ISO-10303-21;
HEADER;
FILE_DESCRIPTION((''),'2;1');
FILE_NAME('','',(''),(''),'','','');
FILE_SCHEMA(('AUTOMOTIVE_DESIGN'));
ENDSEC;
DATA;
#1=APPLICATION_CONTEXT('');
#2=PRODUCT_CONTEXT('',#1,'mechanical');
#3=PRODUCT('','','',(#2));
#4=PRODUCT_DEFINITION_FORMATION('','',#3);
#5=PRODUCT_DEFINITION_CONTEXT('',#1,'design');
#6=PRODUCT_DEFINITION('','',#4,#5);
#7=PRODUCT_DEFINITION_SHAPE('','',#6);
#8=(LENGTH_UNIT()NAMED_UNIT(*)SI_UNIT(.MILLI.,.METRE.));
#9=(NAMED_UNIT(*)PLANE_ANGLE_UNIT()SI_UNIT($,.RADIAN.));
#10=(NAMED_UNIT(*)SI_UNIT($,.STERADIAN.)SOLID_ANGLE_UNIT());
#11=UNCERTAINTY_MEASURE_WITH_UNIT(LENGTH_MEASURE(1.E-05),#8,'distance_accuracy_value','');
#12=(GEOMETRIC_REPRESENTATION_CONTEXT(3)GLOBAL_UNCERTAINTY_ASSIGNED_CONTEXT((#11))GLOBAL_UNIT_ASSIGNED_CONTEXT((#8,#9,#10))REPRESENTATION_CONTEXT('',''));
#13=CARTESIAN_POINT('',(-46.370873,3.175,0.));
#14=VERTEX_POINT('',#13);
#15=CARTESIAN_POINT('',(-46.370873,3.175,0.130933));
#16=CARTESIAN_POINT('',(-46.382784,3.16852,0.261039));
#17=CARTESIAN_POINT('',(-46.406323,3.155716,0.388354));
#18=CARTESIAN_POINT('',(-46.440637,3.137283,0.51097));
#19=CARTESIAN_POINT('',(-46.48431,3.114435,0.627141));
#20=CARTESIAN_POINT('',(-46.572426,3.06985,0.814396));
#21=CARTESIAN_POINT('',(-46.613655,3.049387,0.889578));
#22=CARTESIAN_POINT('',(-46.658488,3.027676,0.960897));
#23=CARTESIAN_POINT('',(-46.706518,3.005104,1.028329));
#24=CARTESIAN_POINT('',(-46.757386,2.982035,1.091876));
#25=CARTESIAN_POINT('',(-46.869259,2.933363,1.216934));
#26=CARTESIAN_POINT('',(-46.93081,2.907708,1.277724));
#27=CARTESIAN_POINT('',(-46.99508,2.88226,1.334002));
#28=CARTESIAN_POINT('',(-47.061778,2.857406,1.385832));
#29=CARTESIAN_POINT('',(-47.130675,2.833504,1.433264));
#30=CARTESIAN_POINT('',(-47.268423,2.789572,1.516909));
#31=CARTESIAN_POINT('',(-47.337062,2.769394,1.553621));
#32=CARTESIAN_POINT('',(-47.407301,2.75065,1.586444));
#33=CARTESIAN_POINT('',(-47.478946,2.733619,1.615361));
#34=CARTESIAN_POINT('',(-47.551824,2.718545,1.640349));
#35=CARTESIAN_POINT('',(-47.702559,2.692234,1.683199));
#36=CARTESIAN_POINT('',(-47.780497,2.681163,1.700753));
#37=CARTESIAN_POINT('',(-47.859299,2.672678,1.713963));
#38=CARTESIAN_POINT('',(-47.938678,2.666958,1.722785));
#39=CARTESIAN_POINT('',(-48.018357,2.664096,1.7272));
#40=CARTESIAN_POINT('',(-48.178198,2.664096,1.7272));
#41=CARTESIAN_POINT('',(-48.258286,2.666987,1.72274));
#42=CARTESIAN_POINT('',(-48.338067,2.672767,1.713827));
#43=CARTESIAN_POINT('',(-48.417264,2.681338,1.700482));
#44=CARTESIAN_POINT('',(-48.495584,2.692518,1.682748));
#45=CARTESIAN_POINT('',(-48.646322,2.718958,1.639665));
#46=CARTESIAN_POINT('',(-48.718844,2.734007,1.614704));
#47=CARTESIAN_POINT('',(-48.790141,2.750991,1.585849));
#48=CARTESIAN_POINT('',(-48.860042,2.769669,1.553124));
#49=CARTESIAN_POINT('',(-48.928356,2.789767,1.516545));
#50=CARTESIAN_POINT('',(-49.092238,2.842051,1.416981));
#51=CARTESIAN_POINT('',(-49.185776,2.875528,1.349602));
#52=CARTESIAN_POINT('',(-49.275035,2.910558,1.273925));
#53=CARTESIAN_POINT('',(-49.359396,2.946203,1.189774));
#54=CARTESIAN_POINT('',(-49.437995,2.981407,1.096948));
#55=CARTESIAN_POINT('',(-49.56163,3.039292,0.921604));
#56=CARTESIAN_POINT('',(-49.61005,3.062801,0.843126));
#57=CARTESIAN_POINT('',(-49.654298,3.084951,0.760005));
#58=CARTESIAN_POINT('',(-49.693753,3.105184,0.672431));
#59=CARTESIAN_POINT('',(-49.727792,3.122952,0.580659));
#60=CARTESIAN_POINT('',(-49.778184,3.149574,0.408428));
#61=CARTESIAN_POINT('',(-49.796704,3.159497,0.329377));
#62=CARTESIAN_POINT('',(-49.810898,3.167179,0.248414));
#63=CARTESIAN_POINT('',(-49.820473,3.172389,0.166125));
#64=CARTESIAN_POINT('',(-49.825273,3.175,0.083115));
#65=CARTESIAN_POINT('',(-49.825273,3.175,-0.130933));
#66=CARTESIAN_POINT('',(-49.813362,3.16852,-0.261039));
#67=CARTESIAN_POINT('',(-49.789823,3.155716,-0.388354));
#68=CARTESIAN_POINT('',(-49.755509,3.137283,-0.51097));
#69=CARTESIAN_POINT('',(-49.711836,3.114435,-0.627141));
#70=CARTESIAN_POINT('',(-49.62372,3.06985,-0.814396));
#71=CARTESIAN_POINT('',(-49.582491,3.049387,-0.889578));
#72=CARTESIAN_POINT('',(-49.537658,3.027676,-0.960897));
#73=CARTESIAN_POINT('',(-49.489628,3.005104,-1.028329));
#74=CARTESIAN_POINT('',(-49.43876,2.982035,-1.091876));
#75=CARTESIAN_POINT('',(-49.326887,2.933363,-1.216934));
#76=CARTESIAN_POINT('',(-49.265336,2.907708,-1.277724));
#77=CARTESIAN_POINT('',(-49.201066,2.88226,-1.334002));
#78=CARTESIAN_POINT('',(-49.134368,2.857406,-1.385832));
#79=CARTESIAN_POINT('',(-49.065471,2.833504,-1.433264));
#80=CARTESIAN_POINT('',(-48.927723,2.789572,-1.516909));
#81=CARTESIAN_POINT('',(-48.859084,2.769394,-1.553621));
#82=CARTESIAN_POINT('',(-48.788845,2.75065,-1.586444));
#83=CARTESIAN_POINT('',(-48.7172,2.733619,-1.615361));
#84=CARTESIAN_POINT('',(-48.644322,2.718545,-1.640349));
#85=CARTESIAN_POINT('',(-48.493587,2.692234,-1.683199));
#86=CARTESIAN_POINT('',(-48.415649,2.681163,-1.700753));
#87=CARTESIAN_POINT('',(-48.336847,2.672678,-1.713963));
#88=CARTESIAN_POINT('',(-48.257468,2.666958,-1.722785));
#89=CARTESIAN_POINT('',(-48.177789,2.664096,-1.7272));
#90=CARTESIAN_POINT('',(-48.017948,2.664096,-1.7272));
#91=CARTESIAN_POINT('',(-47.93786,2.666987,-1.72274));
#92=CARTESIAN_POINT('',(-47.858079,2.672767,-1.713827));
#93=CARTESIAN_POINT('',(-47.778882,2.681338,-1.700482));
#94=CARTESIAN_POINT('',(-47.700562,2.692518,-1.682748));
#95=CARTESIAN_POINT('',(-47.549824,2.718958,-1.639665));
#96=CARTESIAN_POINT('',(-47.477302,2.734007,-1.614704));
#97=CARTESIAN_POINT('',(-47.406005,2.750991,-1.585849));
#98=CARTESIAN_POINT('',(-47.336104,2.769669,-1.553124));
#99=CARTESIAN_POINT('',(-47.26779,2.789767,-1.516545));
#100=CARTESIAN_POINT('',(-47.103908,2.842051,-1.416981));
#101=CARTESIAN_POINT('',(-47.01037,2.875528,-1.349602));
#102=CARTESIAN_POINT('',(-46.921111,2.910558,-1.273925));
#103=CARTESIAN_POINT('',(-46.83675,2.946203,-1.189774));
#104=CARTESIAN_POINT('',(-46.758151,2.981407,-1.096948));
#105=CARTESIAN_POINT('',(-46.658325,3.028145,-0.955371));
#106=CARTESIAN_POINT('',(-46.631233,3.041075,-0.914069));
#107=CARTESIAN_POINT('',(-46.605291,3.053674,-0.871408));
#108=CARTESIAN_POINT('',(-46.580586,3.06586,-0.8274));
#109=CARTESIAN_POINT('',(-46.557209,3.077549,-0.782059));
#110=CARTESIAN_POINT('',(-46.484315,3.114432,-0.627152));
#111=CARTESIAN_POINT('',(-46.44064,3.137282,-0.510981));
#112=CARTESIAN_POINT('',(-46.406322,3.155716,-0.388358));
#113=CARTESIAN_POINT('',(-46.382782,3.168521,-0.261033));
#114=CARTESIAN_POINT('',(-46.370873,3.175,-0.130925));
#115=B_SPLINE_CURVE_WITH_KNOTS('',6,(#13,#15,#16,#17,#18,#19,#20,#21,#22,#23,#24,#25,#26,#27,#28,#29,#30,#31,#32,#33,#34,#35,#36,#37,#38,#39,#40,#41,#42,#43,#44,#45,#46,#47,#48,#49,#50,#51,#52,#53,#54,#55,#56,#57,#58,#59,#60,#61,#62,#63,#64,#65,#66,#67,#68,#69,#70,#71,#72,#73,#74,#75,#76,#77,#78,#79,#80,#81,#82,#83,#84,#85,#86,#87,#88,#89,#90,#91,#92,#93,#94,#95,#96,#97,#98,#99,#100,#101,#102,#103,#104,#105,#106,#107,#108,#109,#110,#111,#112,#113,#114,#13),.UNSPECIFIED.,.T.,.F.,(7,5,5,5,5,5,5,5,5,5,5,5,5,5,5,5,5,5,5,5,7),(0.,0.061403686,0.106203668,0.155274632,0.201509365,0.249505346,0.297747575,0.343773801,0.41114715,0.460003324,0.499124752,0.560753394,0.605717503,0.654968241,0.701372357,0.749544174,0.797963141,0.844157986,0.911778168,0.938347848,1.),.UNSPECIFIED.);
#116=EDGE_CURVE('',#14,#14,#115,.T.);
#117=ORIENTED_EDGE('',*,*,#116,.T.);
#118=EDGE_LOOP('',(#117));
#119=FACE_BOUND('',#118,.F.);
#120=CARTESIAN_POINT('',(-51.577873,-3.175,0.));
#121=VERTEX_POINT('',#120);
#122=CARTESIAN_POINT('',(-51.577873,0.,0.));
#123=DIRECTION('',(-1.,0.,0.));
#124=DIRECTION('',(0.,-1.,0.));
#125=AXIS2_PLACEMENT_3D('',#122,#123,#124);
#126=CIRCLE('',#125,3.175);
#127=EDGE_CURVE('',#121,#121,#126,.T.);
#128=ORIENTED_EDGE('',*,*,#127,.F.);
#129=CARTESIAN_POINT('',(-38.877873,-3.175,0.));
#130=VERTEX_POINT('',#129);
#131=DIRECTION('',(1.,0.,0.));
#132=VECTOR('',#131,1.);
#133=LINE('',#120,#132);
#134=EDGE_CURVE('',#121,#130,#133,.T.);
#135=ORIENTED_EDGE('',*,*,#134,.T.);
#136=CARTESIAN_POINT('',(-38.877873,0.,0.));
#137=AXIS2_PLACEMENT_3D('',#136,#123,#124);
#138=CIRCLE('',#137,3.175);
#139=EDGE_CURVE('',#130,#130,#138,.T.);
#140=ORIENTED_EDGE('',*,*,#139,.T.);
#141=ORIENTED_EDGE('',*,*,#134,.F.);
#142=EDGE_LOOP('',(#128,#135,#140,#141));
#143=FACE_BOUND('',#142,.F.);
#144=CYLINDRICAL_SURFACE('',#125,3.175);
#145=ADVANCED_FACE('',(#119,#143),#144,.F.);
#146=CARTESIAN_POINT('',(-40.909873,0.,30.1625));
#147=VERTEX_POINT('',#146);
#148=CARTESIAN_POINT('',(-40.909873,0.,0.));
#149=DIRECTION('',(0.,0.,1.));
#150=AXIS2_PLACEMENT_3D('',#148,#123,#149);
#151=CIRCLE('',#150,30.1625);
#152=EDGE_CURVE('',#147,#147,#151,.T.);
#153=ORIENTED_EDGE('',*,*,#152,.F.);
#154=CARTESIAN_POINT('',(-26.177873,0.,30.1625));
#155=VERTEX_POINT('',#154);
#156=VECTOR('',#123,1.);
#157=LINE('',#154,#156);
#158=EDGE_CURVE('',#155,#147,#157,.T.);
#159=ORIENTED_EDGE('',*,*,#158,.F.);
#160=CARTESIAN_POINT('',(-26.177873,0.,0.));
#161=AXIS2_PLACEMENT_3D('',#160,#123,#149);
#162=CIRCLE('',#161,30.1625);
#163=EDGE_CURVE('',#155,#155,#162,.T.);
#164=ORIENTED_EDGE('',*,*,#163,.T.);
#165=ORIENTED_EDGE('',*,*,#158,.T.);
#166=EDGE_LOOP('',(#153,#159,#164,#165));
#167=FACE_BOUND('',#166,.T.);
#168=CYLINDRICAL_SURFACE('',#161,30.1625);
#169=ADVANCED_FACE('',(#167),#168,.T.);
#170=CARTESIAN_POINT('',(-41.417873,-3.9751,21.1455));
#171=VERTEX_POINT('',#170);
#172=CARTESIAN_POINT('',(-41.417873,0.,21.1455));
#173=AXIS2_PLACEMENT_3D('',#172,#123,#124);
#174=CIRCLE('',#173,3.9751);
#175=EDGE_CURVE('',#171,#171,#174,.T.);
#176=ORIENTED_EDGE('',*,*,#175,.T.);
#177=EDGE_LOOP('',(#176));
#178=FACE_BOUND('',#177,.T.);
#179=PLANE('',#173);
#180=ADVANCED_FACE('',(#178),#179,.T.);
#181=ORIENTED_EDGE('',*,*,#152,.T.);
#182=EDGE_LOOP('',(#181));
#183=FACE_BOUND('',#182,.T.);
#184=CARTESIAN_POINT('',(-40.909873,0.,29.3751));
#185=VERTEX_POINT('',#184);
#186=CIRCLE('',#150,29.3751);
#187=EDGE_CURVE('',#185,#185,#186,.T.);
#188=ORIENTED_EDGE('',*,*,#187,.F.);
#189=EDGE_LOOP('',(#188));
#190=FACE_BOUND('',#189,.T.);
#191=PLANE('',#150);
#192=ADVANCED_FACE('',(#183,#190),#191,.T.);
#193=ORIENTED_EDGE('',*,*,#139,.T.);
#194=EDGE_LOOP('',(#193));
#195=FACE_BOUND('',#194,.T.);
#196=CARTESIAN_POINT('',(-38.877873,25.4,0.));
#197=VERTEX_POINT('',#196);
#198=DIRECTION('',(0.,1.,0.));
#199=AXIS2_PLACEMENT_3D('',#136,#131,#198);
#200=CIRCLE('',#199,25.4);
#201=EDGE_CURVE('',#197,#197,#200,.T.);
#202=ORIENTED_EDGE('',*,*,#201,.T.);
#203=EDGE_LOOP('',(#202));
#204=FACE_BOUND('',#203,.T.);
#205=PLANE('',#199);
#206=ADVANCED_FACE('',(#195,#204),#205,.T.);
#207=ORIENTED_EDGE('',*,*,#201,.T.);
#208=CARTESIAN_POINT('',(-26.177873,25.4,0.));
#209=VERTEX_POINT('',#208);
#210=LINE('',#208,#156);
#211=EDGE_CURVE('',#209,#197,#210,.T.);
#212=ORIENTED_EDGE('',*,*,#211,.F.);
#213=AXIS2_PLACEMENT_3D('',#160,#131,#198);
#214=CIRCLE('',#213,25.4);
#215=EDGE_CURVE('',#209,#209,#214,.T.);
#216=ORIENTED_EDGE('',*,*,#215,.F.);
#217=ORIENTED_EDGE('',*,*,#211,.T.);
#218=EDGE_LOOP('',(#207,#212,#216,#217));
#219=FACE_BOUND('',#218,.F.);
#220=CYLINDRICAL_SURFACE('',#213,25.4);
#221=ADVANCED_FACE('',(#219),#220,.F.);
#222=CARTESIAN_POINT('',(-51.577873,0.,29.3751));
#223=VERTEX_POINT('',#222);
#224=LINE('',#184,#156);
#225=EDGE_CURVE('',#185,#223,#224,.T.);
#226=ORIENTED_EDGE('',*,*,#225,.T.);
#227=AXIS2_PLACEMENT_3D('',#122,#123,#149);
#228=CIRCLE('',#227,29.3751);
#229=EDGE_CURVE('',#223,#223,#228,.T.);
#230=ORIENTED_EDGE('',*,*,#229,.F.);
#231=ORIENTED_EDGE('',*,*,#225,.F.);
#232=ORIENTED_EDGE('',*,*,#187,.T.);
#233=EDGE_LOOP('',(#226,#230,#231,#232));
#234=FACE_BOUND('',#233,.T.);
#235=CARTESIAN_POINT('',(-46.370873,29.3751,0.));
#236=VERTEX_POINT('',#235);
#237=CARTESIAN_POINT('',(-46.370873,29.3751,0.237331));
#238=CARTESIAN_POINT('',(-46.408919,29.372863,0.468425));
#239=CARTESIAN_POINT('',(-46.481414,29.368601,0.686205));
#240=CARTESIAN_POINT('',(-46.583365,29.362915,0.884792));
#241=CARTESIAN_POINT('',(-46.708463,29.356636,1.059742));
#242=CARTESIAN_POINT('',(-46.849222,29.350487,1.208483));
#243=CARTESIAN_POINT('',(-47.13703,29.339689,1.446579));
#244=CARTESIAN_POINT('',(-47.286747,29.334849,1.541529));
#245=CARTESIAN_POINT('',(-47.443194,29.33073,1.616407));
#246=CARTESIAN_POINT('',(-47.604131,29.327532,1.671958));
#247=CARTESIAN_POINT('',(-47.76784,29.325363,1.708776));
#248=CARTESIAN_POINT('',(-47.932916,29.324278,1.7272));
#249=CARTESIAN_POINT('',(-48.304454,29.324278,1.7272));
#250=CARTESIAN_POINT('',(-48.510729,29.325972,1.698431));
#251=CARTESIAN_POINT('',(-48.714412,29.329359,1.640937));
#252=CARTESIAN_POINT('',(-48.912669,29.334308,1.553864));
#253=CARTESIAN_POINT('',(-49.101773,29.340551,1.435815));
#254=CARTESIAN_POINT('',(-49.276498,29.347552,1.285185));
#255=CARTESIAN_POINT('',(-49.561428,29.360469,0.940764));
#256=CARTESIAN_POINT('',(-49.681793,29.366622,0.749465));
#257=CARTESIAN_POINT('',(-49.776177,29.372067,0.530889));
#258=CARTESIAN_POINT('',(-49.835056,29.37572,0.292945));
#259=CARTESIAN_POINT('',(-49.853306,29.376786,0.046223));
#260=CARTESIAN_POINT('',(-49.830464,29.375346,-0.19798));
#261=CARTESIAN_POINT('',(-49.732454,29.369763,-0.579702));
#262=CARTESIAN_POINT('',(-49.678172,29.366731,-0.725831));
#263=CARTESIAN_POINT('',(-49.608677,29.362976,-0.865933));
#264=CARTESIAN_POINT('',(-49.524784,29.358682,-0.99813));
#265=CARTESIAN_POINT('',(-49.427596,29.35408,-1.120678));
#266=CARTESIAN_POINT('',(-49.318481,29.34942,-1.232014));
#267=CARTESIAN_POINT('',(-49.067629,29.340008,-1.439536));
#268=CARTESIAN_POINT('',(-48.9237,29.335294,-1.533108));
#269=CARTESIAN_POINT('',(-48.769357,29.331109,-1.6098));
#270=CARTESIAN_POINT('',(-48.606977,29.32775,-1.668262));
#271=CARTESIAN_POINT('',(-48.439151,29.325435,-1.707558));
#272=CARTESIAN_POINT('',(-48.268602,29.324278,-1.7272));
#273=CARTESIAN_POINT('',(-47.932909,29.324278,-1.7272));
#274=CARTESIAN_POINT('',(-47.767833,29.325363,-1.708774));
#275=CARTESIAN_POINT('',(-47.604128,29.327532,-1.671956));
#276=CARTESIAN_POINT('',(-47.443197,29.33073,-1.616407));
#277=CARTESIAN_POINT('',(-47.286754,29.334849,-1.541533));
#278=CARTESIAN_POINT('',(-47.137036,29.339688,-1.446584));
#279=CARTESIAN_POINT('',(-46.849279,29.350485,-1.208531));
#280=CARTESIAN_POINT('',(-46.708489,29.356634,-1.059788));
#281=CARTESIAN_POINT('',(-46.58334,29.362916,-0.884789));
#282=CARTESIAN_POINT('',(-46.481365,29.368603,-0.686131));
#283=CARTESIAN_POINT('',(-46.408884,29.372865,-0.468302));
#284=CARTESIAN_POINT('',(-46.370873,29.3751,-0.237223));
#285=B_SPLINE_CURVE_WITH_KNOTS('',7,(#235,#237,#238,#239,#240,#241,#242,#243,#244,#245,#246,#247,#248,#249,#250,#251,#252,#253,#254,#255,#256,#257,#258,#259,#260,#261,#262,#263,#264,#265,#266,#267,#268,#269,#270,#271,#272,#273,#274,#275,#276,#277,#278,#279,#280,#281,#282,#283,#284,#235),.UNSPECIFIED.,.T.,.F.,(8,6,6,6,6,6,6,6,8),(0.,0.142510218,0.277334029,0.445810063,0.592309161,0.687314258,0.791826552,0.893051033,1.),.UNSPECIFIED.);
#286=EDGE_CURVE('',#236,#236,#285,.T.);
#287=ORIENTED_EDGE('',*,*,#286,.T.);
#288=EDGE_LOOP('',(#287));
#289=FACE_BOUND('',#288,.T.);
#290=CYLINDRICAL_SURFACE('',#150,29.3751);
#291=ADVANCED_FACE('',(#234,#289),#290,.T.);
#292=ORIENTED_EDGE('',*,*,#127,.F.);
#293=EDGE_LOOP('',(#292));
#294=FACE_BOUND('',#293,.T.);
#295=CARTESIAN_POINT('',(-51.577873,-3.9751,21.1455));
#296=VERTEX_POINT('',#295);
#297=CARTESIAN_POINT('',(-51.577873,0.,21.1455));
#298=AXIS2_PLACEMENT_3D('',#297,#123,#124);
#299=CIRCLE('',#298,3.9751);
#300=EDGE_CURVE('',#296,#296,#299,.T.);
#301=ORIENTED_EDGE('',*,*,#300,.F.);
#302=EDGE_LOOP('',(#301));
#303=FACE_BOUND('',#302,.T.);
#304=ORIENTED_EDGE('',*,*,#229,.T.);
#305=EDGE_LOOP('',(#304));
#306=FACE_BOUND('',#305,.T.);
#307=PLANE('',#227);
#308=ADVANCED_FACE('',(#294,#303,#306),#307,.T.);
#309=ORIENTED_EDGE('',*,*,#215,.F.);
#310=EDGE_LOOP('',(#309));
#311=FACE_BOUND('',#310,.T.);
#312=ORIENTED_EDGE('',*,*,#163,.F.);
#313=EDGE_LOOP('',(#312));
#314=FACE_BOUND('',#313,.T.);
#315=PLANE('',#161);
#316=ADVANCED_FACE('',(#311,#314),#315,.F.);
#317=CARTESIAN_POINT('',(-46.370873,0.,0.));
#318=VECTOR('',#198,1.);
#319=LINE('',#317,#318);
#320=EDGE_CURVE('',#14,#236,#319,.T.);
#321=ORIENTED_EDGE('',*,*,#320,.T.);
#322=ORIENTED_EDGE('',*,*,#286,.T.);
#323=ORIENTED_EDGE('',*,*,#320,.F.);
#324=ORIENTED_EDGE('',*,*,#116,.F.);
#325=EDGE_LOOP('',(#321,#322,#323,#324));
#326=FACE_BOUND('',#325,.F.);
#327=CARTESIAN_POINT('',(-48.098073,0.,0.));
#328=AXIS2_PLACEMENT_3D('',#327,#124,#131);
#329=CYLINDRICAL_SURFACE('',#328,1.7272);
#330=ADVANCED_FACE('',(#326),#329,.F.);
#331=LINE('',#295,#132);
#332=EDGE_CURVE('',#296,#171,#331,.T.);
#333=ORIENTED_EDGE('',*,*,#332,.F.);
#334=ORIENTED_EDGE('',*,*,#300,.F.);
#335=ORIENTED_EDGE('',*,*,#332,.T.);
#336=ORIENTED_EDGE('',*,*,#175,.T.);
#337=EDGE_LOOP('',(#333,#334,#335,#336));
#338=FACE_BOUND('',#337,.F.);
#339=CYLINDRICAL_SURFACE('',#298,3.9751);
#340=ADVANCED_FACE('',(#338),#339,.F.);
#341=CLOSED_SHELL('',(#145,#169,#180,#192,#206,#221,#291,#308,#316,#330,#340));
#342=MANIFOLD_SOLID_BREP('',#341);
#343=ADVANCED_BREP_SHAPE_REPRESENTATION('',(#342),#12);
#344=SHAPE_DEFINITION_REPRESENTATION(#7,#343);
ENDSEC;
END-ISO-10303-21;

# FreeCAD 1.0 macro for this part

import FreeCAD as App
import Part
import Sketcher
Q = App.Units.Quantity


def add_polygon(sketch, points):
    """Adds a closed chain of lines whose ends are joined by coincident constraints."""
    first, n = sketch.GeometryCount, len(points)
    for a, b in zip(points, points[1:] + points[:1]):
        sketch.addGeometry(Part.LineSegment(App.Vector(*a, 0), App.Vector(*b, 0)), False)
    for i in range(n):
        sketch.addConstraint(Sketcher.Constraint("Coincident", first + i, 2, first + (i + 1) % n, 1))

doc = App.newDocument("Part")
params = doc.addObject("Spreadsheet::Sheet", "Params")
for row, (alias, value) in enumerate([
    ("sketch1_width", "1 in"),
    ("sketch1_width2", "0.58 in"),
    ("sketch1_height", "1.1875 in"),
    ("sketch1_height2", "0.031 in"),
    ("revolution_angle", "360 deg"),
    ("sketch2_diameter", "2 in"),
    ("pocket1_length", "0.5 in"),
    ("sketch3_diameter", "0.25 in"),
    ("pocket2_length", "1 in"),
    ("sketch4_diameter", "0.313 in"),
    ("pocket3_length", "0.4 in"),
    ("sketch5_diameter", "0.136 in"),
    ("pocket4_length", "70.55837 mm"),
], start=1):
    params.set(f"A{row}", alias)
    params.set(f"B{row}", "=" + value)
    params.setAlias(f"B{row}", alias)

body = doc.addObject("PartDesign::Body", "Body")

sketch1 = body.newObject("Sketcher::SketchObject", "Sketch")
sketch1.AttachmentSupport = (doc.getObject("XZ_Plane"), [""])
sketch1.MapMode = "FlatFace"
add_polygon(sketch1, [(-51.6, 29.4), (-51.6, 0), (-26.2, 0), (-26.2, 30.2), (-40.9, 30.2), (-40.9, 29.4)])
sketch1.addConstraint(Sketcher.Constraint("Vertical", 0))
sketch1.addConstraint(Sketcher.Constraint("Horizontal", 1))
sketch1.addConstraint(Sketcher.Constraint("Vertical", 2))
sketch1.addConstraint(Sketcher.Constraint("Horizontal", 3))
sketch1.addConstraint(Sketcher.Constraint("Vertical", 4))
sketch1.addConstraint(Sketcher.Constraint("Horizontal", 5))
sketch1.addConstraint(Sketcher.Constraint("PointOnObject", 0, 2, -1))
sketch1.addConstraint(Sketcher.Constraint("DistanceX", 1, 1, 1, 2, Q("1 in")))
sketch1.addConstraint(Sketcher.Constraint("DistanceX", 3, 2, 3, 1, Q("0.58 in")))
sketch1.addConstraint(Sketcher.Constraint("DistanceY", 2, 1, 2, 2, Q("1.1875 in")))
sketch1.addConstraint(Sketcher.Constraint("DistanceY", 4, 2, 4, 1, Q("0.031 in")))
sketch1.addConstraint(Sketcher.Constraint("DistanceX", 0, 2, -1, 1, Q("51.577873 mm")))
sketch1.setExpression("Constraints[13]", "Params.sketch1_width")
sketch1.setExpression("Constraints[14]", "Params.sketch1_width2")
sketch1.setExpression("Constraints[15]", "Params.sketch1_height")
sketch1.setExpression("Constraints[16]", "Params.sketch1_height2")
revolution = body.newObject("PartDesign::Revolution", "Revolution")
revolution.Profile = sketch1
revolution.ReferenceAxis = (sketch1, ["H_Axis"])
revolution.setExpression("Angle", "Params.revolution_angle")

sketch2 = body.newObject("Sketcher::SketchObject", "Sketch001")
sketch2.AttachmentSupport = (doc.getObject("YZ_Plane"), [""])
sketch2.MapMode = "FlatFace"
sketch2.AttachmentOffset = App.Placement(App.Vector(0, 0, -26.177873), App.Rotation())
sketch2.addGeometry(Part.Circle(App.Vector(0, 0, 0), App.Vector(0, 0, 1), 25), False)
sketch2.addConstraint(Sketcher.Constraint("Coincident", 0, 3, -1, 1))
sketch2.addConstraint(Sketcher.Constraint("Diameter", 0, Q("2 in")))
sketch2.setExpression("Constraints[1]", "Params.sketch2_diameter")
pocket1 = body.newObject("PartDesign::Pocket", "Pocket")
pocket1.Profile = sketch2
pocket1.setExpression("Length", "Params.pocket1_length")

sketch3 = body.newObject("Sketcher::SketchObject", "Sketch002")
sketch3.AttachmentSupport = (doc.getObject("YZ_Plane"), [""])
sketch3.MapMode = "FlatFace"
sketch3.AttachmentOffset = App.Placement(App.Vector(0, 0, -51.577873), App.Rotation())
sketch3.addGeometry(Part.Circle(App.Vector(0, 0, 0), App.Vector(0, 0, 1), 3.2), False)
sketch3.addConstraint(Sketcher.Constraint("Coincident", 0, 3, -1, 1))
sketch3.addConstraint(Sketcher.Constraint("Diameter", 0, Q("0.25 in")))
sketch3.setExpression("Constraints[1]", "Params.sketch3_diameter")
pocket2 = body.newObject("PartDesign::Pocket", "Pocket001")
pocket2.Profile = sketch3
pocket2.setExpression("Length", "Params.pocket2_length")
pocket2.Reversed = True

sketch4 = body.newObject("Sketcher::SketchObject", "Sketch003")
sketch4.AttachmentSupport = (doc.getObject("YZ_Plane"), [""])
sketch4.MapMode = "FlatFace"
sketch4.AttachmentOffset = App.Placement(App.Vector(0, 0, -51.577873), App.Rotation())
sketch4.addGeometry(Part.Circle(App.Vector(0, 21.1, 0), App.Vector(0, 0, 1), 4), False)
sketch4.addConstraint(Sketcher.Constraint("PointOnObject", 0, 3, -2))
sketch4.addConstraint(Sketcher.Constraint("Diameter", 0, Q("0.313 in")))
sketch4.addConstraint(Sketcher.Constraint("DistanceY", -1, 1, 0, 3, Q("0.8325 in")))
sketch4.setExpression("Constraints[1]", "Params.sketch4_diameter")
pocket3 = body.newObject("PartDesign::Pocket", "Pocket002")
pocket3.Profile = sketch4
pocket3.setExpression("Length", "Params.pocket3_length")
pocket3.Reversed = True

sketch5 = body.newObject("Sketcher::SketchObject", "Sketch004")
sketch5.AttachmentSupport = (doc.getObject("XZ_Plane"), [""])
sketch5.MapMode = "FlatFace"
sketch5.addGeometry(Part.Circle(App.Vector(-48.1, 0, 0), App.Vector(0, 0, 1), 1.7), False)
sketch5.addConstraint(Sketcher.Constraint("PointOnObject", 0, 3, -1))
sketch5.addConstraint(Sketcher.Constraint("Diameter", 0, Q("0.136 in")))
sketch5.addConstraint(Sketcher.Constraint("DistanceX", 0, 3, -1, 1, Q("48.098073 mm")))
sketch5.setExpression("Constraints[1]", "Params.sketch5_diameter")
pocket4 = body.newObject("PartDesign::Pocket", "Pocket003")
pocket4.Profile = sketch5
pocket4.setExpression("Length", "Params.pocket4_length")

doc.recompute()
